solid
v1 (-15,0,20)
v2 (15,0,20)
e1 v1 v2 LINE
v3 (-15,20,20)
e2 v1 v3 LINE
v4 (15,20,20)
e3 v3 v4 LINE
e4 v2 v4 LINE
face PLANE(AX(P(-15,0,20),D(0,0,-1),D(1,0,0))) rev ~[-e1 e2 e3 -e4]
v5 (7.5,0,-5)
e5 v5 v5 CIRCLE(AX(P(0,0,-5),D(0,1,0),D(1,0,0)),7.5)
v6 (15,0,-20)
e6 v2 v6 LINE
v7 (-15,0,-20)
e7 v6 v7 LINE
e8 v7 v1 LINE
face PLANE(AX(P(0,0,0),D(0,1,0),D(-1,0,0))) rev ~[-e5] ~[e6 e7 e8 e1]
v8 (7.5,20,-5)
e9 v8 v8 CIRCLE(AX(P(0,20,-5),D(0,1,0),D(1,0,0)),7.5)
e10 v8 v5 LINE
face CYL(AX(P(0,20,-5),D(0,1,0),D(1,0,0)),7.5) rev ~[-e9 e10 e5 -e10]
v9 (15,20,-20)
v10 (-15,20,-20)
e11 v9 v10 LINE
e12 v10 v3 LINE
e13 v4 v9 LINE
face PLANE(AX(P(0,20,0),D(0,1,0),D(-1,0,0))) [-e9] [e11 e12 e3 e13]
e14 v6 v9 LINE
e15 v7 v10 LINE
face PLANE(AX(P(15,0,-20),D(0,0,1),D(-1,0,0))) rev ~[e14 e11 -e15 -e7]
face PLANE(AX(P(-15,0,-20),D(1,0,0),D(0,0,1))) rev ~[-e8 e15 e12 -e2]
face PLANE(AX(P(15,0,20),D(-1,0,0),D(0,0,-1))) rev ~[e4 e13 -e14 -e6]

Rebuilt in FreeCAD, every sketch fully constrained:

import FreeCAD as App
import Part
import Sketcher

V = App.Vector


def add_polygon(sketch, points):
    """Adds a closed chain of lines whose ends are joined by coincident constraints."""
    first, n = sketch.GeometryCount, len(points)
    for a, b in zip(points, points[1:] + points[:1]):
        sketch.addGeometry(Part.LineSegment(App.Vector(*a, 0), App.Vector(*b, 0)), False)
    for i in range(n):
        sketch.addConstraint(Sketcher.Constraint("Coincident", first + i, 2, first + (i + 1) % n, 1))

doc = App.newDocument("Part")
params = doc.addObject("Spreadsheet::Sheet", "Params")
for row, (alias, value) in enumerate([
    ("sketch1_width", "30 mm"),
    ("sketch1_height", "40 mm"),
    ("pad1_length", "20 mm"),
    ("sketch2_diameter", "15 mm"),
    ("pocket1_length", "20 mm"),
], start=1):
    params.set(f"A{row}", alias)
    params.set(f"B{row}", "=" + value)
    params.setAlias(f"B{row}", alias)

body = doc.addObject("PartDesign::Body", "Body")

# Sketch on XZ plane
sketch1 = doc.addObject("Sketcher::SketchObject", "Sketch")
body.addObject(sketch1)
sketch1.AttachmentSupport = (doc.XZ_Plane, [""])
sketch1.MapMode = "FlatFace"
add_polygon(sketch1, [(-15, -20), (-15, 20), (15, 20), (15, -20)])  # lines 0-3
sketch1.addConstraint([
    Sketcher.Constraint("Vertical", 0),
    Sketcher.Constraint("Horizontal", 1),
    Sketcher.Constraint("Vertical", 2),
    Sketcher.Constraint("Horizontal", 3),
    Sketcher.Constraint("Symmetric", 0, 2, 2, 2, -1, 1),
    Sketcher.Constraint("DistanceX", 1, 1, 1, 2, 30.0),
    Sketcher.Constraint("DistanceY", 0, 1, 0, 2, 40.0),
])
sketch1.setExpression("Constraints[9]", "Params.sketch1_width")
sketch1.setExpression("Constraints[10]", "Params.sketch1_height")
pad1 = doc.addObject("PartDesign::Pad", "Pad")
body.addObject(pad1)
pad1.Profile = sketch1
pad1.setExpression("Length", "Params.pad1_length")
pad1.Reversed = True

# Sketch on XZ plane
sketch2 = doc.addObject("Sketcher::SketchObject", "Sketch001")
body.addObject(sketch2)
sketch2.AttachmentSupport = (doc.XZ_Plane, [""])
sketch2.MapMode = "FlatFace"
sketch2.AttachmentOffset = App.Placement(V(0, 0, -20), App.Rotation())
sketch2.addGeometry(Part.Circle(V(0, -5, 0), V(0, 0, 1), 8), False)
sketch2.addConstraint([
    Sketcher.Constraint("PointOnObject", 0, 3, -2),
    Sketcher.Constraint("Diameter", 0, 15.0),
    Sketcher.Constraint("DistanceY", 0, 3, -1, 1, 5.0),
])
sketch2.setExpression("Constraints[1]", "Params.sketch2_diameter")
pocket1 = doc.addObject("PartDesign::Pocket", "Pocket")
body.addObject(pocket1)
pocket1.Profile = sketch2
pocket1.setExpression("Length", "Params.pocket1_length")
pocket1.Reversed = True

doc.recompute()
